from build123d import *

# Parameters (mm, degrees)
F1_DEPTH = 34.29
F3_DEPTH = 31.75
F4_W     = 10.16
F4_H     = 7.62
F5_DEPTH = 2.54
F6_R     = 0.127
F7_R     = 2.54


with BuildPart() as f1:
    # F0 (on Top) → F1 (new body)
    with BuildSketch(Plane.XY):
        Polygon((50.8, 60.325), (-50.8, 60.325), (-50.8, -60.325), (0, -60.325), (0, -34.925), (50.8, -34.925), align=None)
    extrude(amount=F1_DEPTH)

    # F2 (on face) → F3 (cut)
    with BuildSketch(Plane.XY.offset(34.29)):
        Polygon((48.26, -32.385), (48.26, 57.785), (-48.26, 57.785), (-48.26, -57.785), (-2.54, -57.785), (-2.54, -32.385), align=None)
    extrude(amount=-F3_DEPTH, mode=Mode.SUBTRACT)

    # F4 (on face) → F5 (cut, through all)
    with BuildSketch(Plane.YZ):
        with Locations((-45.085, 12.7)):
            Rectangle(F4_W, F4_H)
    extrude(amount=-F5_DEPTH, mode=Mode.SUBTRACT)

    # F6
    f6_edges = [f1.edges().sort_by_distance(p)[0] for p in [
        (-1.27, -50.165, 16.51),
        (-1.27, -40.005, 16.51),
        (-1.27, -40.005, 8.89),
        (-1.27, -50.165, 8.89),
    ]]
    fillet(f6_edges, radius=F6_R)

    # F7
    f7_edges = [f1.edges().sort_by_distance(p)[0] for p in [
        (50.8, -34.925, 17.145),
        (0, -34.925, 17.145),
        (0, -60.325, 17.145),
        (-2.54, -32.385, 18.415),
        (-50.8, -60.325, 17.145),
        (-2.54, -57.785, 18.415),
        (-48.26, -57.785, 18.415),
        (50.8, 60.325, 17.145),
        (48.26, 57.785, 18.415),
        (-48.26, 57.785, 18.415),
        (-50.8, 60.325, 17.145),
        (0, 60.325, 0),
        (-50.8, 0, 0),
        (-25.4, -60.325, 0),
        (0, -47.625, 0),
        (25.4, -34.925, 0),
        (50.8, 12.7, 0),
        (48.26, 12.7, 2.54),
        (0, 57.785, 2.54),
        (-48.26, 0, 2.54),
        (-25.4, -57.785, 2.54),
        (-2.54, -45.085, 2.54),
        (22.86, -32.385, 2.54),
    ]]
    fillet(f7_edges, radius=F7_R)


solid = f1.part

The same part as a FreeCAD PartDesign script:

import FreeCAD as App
import Part
import Sketcher
from FreeCAD import Vector
Q = App.Units.Quantity


def edges_at(feature, points):
    """Names of the edges that pass closest to the given points."""
    edges = feature.Shape.Edges
    near = lambda p: min(range(len(edges)), key=lambda i: edges[i].distToShape(Part.Vertex(*p))[0])
    return sorted({f"Edge{near(p) + 1}" for p in points})

doc = App.newDocument("Part")
params = doc.addObject("Spreadsheet::Sheet", "Params")
for row, (alias, value) in enumerate([
    ("sketch1_width", "4 in"),
    ("sketch1_height", "1 in"),
    ("sketch1_height2", "4.75 in"),
    ("pad1_length", "1.35 in"),
    ("sketch2_width", "2 in"),
    ("sketch2_height", "1 in"),
    ("sketch2_width2", "3.8 in"),
    ("sketch2_height2", "3.55 in"),
    ("pocket1_length", "1.25 in"),
    ("sketch3_width", "0.4 in"),
    ("sketch3_height", "0.3 in"),
    ("pocket2_length", "0.1 in"),
    ("fillet_radius", "0.005 in"),
    ("fillet2_radius", "0.1 in"),
], start=1):
    params.set(f"A{row}", alias)
    params.set(f"B{row}", "=" + value)
    params.setAlias(f"B{row}", alias)

body = doc.addObject("PartDesign::Body", "Body")

sketch1 = doc.addObject("Sketcher::SketchObject", "Sketch")
body.addObject(sketch1)
sketch1.AttachmentSupport = (doc.XY_Plane, [""])
sketch1.MapMode = "FlatFace"
sketch1.addGeometry([
    Part.LineSegment(Vector(50.8, 60.325, 0), Vector(-50.8, 60.325, 0)),
    Part.LineSegment(Vector(-50.8, 60.325, 0), Vector(-50.8, -60.325, 0)),
    Part.LineSegment(Vector(-50.8, -60.325, 0), Vector(0, -60.325, 0)),
    Part.LineSegment(Vector(0, -60.325, 0), Vector(0, -34.925, 0)),
    Part.LineSegment(Vector(0, -34.925, 0), Vector(50.8, -34.925, 0)),
    Part.LineSegment(Vector(50.8, -34.925, 0), Vector(50.8, 60.325, 0)),
], False)
sketch1.addConstraint([
    Sketcher.Constraint("Coincident", 0, 2, 1, 1),
    Sketcher.Constraint("Coincident", 1, 2, 2, 1),
    Sketcher.Constraint("Coincident", 2, 2, 3, 1),
    Sketcher.Constraint("Coincident", 3, 2, 4, 1),
    Sketcher.Constraint("Coincident", 4, 2, 5, 1),
    Sketcher.Constraint("Coincident", 5, 2, 0, 1),
    Sketcher.Constraint("Horizontal", 0),
    Sketcher.Constraint("Vertical", 1),
    Sketcher.Constraint("Horizontal", 2),
    Sketcher.Constraint("Vertical", 3),
    Sketcher.Constraint("Horizontal", 4),
    Sketcher.Constraint("Vertical", 5),
    Sketcher.Constraint("Symmetric", 1, 2, 5, 2, -1, 1),
    Sketcher.Constraint("PointOnObject", 2, 2, -2),
    Sketcher.Constraint("DistanceX", 0, 2, 0, 1, Q("4 in")),
    Sketcher.Constraint("DistanceY", 3, 1, 3, 2, Q("1 in")),
    Sketcher.Constraint("DistanceY", 1, 2, 1, 1, Q("4.75 in")),
])
sketch1.setExpression("Constraints[14]", "Params.sketch1_width")
sketch1.setExpression("Constraints[15]", "Params.sketch1_height")
sketch1.setExpression("Constraints[16]", "Params.sketch1_height2")
pad1 = doc.addObject("PartDesign::Pad", "Pad")
body.addObject(pad1)
pad1.Profile = sketch1
pad1.setExpression("Length", "Params.pad1_length")

sketch2 = doc.addObject("Sketcher::SketchObject", "Sketch001")
body.addObject(sketch2)
sketch2.AttachmentSupport = (doc.XY_Plane, [""])
sketch2.MapMode = "FlatFace"
sketch2.AttachmentOffset = App.Placement(Vector(0, 0, 1.35 * 25.4), App.Rotation())
sketch2.addGeometry([
    Part.LineSegment(Vector(48.26, -32.385, 0), Vector(48.26, 57.785, 0)),
    Part.LineSegment(Vector(48.26, 57.785, 0), Vector(-48.26, 57.785, 0)),
    Part.LineSegment(Vector(-48.26, 57.785, 0), Vector(-48.26, -57.785, 0)),
    Part.LineSegment(Vector(-48.26, -57.785, 0), Vector(-2.54, -57.785, 0)),
    Part.LineSegment(Vector(-2.54, -57.785, 0), Vector(-2.54, -32.385, 0)),
    Part.LineSegment(Vector(-2.54, -32.385, 0), Vector(48.26, -32.385, 0)),
], False)
sketch2.addConstraint([
    Sketcher.Constraint("Coincident", 0, 2, 1, 1),
    Sketcher.Constraint("Coincident", 1, 2, 2, 1),
    Sketcher.Constraint("Coincident", 2, 2, 3, 1),
    Sketcher.Constraint("Coincident", 3, 2, 4, 1),
    Sketcher.Constraint("Coincident", 4, 2, 5, 1),
    Sketcher.Constraint("Coincident", 5, 2, 0, 1),
    Sketcher.Constraint("Vertical", 0),
    Sketcher.Constraint("Horizontal", 1),
    Sketcher.Constraint("Vertical", 2),
    Sketcher.Constraint("Horizontal", 3),
    Sketcher.Constraint("Vertical", 4),
    Sketcher.Constraint("Horizontal", 5),
    Sketcher.Constraint("Symmetric", 0, 2, 2, 2, -1, 1),
    Sketcher.Constraint("DistanceX", 5, 1, 5, 2, Q("2 in")),
    Sketcher.Constraint("DistanceY", 4, 1, 4, 2, Q("1 in")),
    Sketcher.Constraint("DistanceX", 1, 2, 1, 1, Q("3.8 in")),
    Sketcher.Constraint("DistanceY", 0, 1, 0, 2, Q("3.55 in")),
])
sketch2.setExpression("Constraints[13]", "Params.sketch2_width")
sketch2.setExpression("Constraints[14]", "Params.sketch2_height")
sketch2.setExpression("Constraints[15]", "Params.sketch2_width2")
sketch2.setExpression("Constraints[16]", "Params.sketch2_height2")
pocket1 = doc.addObject("PartDesign::Pocket", "Pocket")
body.addObject(pocket1)
pocket1.Profile = sketch2
pocket1.setExpression("Length", "Params.pocket1_length")

sketch3 = doc.addObject("Sketcher::SketchObject", "Sketch002")
body.addObject(sketch3)
sketch3.AttachmentSupport = (doc.YZ_Plane, [""])
sketch3.MapMode = "FlatFace"
sketch3.addGeometry([
    Part.LineSegment(Vector(-50.165, 16.51, 0), Vector(-50.165, 8.89, 0)),
    Part.LineSegment(Vector(-50.165, 8.89, 0), Vector(-40.005, 8.89, 0)),
    Part.LineSegment(Vector(-40.005, 8.89, 0), Vector(-40.005, 16.51, 0)),
    Part.LineSegment(Vector(-40.005, 16.51, 0), Vector(-50.165, 16.51, 0)),
], False)
sketch3.addConstraint([
    Sketcher.Constraint("Coincident", 0, 2, 1, 1),
    Sketcher.Constraint("Coincident", 1, 2, 2, 1),
    Sketcher.Constraint("Coincident", 2, 2, 3, 1),
    Sketcher.Constraint("Coincident", 3, 2, 0, 1),
    Sketcher.Constraint("Vertical", 0),
    Sketcher.Constraint("Horizontal", 1),
    Sketcher.Constraint("Vertical", 2),
    Sketcher.Constraint("Horizontal", 3),
    Sketcher.Constraint("DistanceX", 1, 1, 1, 2, Q("0.4 in")),
    Sketcher.Constraint("DistanceY", 0, 2, 0, 1, Q("0.3 in")),
    Sketcher.Constraint("DistanceY", -1, 1, 0, 2, Q("0.35 in")),
    Sketcher.Constraint("DistanceX", 0, 2, -1, 1, Q("1.975 in")),
])
sketch3.setExpression("Constraints[8]", "Params.sketch3_width")
sketch3.setExpression("Constraints[9]", "Params.sketch3_height")
pocket2 = doc.addObject("PartDesign::Pocket", "Pocket001")
body.addObject(pocket2)
pocket2.Profile = sketch3
pocket2.setExpression("Length", "Params.pocket2_length")
doc.recompute()

fillet = doc.addObject("PartDesign::Fillet", "Fillet")
body.addObject(fillet)
fillet.Base = (pocket2, edges_at(pocket2, [
    (-1.27, -50.165, 16.51),
    (-1.27, -40.005, 16.51),
    (-1.27, -40.005, 8.89),
    (-1.27, -50.165, 8.89),
]))
fillet.setExpression("Radius", "Params.fillet_radius")
doc.recompute()

fillet2 = doc.addObject("PartDesign::Fillet", "Fillet001")
body.addObject(fillet2)
fillet2.Base = (fillet, edges_at(fillet, [
    (50.8, -34.925, 17.145),
    (0, -34.925, 17.145),
    (0, -60.325, 17.145),
    (-2.54, -32.385, 18.415),
    (-50.8, -60.325, 17.145),
    (-2.54, -57.785, 18.415),
    (-48.26, -57.785, 18.415),
    (50.8, 60.325, 17.145),
    (48.26, 57.785, 18.415),
    (-48.26, 57.785, 18.415),
    (-50.8, 60.325, 17.145),
    (0, 60.325, 0),
    (-50.8, 0, 0),
    (-25.4, -60.325, 0),
    (0, -47.625, 0),
    (25.4, -34.925, 0),
    (50.8, 12.7, 0),
    (48.26, 12.7, 2.54),
    (0, 57.785, 2.54),
    (-48.26, 0, 2.54),
    (-25.4, -57.785, 2.54),
    (-2.54, -45.085, 2.54),
    (22.86, -32.385, 2.54),
]))
fillet2.setExpression("Radius", "Params.fillet2_radius")

doc.recompute()
